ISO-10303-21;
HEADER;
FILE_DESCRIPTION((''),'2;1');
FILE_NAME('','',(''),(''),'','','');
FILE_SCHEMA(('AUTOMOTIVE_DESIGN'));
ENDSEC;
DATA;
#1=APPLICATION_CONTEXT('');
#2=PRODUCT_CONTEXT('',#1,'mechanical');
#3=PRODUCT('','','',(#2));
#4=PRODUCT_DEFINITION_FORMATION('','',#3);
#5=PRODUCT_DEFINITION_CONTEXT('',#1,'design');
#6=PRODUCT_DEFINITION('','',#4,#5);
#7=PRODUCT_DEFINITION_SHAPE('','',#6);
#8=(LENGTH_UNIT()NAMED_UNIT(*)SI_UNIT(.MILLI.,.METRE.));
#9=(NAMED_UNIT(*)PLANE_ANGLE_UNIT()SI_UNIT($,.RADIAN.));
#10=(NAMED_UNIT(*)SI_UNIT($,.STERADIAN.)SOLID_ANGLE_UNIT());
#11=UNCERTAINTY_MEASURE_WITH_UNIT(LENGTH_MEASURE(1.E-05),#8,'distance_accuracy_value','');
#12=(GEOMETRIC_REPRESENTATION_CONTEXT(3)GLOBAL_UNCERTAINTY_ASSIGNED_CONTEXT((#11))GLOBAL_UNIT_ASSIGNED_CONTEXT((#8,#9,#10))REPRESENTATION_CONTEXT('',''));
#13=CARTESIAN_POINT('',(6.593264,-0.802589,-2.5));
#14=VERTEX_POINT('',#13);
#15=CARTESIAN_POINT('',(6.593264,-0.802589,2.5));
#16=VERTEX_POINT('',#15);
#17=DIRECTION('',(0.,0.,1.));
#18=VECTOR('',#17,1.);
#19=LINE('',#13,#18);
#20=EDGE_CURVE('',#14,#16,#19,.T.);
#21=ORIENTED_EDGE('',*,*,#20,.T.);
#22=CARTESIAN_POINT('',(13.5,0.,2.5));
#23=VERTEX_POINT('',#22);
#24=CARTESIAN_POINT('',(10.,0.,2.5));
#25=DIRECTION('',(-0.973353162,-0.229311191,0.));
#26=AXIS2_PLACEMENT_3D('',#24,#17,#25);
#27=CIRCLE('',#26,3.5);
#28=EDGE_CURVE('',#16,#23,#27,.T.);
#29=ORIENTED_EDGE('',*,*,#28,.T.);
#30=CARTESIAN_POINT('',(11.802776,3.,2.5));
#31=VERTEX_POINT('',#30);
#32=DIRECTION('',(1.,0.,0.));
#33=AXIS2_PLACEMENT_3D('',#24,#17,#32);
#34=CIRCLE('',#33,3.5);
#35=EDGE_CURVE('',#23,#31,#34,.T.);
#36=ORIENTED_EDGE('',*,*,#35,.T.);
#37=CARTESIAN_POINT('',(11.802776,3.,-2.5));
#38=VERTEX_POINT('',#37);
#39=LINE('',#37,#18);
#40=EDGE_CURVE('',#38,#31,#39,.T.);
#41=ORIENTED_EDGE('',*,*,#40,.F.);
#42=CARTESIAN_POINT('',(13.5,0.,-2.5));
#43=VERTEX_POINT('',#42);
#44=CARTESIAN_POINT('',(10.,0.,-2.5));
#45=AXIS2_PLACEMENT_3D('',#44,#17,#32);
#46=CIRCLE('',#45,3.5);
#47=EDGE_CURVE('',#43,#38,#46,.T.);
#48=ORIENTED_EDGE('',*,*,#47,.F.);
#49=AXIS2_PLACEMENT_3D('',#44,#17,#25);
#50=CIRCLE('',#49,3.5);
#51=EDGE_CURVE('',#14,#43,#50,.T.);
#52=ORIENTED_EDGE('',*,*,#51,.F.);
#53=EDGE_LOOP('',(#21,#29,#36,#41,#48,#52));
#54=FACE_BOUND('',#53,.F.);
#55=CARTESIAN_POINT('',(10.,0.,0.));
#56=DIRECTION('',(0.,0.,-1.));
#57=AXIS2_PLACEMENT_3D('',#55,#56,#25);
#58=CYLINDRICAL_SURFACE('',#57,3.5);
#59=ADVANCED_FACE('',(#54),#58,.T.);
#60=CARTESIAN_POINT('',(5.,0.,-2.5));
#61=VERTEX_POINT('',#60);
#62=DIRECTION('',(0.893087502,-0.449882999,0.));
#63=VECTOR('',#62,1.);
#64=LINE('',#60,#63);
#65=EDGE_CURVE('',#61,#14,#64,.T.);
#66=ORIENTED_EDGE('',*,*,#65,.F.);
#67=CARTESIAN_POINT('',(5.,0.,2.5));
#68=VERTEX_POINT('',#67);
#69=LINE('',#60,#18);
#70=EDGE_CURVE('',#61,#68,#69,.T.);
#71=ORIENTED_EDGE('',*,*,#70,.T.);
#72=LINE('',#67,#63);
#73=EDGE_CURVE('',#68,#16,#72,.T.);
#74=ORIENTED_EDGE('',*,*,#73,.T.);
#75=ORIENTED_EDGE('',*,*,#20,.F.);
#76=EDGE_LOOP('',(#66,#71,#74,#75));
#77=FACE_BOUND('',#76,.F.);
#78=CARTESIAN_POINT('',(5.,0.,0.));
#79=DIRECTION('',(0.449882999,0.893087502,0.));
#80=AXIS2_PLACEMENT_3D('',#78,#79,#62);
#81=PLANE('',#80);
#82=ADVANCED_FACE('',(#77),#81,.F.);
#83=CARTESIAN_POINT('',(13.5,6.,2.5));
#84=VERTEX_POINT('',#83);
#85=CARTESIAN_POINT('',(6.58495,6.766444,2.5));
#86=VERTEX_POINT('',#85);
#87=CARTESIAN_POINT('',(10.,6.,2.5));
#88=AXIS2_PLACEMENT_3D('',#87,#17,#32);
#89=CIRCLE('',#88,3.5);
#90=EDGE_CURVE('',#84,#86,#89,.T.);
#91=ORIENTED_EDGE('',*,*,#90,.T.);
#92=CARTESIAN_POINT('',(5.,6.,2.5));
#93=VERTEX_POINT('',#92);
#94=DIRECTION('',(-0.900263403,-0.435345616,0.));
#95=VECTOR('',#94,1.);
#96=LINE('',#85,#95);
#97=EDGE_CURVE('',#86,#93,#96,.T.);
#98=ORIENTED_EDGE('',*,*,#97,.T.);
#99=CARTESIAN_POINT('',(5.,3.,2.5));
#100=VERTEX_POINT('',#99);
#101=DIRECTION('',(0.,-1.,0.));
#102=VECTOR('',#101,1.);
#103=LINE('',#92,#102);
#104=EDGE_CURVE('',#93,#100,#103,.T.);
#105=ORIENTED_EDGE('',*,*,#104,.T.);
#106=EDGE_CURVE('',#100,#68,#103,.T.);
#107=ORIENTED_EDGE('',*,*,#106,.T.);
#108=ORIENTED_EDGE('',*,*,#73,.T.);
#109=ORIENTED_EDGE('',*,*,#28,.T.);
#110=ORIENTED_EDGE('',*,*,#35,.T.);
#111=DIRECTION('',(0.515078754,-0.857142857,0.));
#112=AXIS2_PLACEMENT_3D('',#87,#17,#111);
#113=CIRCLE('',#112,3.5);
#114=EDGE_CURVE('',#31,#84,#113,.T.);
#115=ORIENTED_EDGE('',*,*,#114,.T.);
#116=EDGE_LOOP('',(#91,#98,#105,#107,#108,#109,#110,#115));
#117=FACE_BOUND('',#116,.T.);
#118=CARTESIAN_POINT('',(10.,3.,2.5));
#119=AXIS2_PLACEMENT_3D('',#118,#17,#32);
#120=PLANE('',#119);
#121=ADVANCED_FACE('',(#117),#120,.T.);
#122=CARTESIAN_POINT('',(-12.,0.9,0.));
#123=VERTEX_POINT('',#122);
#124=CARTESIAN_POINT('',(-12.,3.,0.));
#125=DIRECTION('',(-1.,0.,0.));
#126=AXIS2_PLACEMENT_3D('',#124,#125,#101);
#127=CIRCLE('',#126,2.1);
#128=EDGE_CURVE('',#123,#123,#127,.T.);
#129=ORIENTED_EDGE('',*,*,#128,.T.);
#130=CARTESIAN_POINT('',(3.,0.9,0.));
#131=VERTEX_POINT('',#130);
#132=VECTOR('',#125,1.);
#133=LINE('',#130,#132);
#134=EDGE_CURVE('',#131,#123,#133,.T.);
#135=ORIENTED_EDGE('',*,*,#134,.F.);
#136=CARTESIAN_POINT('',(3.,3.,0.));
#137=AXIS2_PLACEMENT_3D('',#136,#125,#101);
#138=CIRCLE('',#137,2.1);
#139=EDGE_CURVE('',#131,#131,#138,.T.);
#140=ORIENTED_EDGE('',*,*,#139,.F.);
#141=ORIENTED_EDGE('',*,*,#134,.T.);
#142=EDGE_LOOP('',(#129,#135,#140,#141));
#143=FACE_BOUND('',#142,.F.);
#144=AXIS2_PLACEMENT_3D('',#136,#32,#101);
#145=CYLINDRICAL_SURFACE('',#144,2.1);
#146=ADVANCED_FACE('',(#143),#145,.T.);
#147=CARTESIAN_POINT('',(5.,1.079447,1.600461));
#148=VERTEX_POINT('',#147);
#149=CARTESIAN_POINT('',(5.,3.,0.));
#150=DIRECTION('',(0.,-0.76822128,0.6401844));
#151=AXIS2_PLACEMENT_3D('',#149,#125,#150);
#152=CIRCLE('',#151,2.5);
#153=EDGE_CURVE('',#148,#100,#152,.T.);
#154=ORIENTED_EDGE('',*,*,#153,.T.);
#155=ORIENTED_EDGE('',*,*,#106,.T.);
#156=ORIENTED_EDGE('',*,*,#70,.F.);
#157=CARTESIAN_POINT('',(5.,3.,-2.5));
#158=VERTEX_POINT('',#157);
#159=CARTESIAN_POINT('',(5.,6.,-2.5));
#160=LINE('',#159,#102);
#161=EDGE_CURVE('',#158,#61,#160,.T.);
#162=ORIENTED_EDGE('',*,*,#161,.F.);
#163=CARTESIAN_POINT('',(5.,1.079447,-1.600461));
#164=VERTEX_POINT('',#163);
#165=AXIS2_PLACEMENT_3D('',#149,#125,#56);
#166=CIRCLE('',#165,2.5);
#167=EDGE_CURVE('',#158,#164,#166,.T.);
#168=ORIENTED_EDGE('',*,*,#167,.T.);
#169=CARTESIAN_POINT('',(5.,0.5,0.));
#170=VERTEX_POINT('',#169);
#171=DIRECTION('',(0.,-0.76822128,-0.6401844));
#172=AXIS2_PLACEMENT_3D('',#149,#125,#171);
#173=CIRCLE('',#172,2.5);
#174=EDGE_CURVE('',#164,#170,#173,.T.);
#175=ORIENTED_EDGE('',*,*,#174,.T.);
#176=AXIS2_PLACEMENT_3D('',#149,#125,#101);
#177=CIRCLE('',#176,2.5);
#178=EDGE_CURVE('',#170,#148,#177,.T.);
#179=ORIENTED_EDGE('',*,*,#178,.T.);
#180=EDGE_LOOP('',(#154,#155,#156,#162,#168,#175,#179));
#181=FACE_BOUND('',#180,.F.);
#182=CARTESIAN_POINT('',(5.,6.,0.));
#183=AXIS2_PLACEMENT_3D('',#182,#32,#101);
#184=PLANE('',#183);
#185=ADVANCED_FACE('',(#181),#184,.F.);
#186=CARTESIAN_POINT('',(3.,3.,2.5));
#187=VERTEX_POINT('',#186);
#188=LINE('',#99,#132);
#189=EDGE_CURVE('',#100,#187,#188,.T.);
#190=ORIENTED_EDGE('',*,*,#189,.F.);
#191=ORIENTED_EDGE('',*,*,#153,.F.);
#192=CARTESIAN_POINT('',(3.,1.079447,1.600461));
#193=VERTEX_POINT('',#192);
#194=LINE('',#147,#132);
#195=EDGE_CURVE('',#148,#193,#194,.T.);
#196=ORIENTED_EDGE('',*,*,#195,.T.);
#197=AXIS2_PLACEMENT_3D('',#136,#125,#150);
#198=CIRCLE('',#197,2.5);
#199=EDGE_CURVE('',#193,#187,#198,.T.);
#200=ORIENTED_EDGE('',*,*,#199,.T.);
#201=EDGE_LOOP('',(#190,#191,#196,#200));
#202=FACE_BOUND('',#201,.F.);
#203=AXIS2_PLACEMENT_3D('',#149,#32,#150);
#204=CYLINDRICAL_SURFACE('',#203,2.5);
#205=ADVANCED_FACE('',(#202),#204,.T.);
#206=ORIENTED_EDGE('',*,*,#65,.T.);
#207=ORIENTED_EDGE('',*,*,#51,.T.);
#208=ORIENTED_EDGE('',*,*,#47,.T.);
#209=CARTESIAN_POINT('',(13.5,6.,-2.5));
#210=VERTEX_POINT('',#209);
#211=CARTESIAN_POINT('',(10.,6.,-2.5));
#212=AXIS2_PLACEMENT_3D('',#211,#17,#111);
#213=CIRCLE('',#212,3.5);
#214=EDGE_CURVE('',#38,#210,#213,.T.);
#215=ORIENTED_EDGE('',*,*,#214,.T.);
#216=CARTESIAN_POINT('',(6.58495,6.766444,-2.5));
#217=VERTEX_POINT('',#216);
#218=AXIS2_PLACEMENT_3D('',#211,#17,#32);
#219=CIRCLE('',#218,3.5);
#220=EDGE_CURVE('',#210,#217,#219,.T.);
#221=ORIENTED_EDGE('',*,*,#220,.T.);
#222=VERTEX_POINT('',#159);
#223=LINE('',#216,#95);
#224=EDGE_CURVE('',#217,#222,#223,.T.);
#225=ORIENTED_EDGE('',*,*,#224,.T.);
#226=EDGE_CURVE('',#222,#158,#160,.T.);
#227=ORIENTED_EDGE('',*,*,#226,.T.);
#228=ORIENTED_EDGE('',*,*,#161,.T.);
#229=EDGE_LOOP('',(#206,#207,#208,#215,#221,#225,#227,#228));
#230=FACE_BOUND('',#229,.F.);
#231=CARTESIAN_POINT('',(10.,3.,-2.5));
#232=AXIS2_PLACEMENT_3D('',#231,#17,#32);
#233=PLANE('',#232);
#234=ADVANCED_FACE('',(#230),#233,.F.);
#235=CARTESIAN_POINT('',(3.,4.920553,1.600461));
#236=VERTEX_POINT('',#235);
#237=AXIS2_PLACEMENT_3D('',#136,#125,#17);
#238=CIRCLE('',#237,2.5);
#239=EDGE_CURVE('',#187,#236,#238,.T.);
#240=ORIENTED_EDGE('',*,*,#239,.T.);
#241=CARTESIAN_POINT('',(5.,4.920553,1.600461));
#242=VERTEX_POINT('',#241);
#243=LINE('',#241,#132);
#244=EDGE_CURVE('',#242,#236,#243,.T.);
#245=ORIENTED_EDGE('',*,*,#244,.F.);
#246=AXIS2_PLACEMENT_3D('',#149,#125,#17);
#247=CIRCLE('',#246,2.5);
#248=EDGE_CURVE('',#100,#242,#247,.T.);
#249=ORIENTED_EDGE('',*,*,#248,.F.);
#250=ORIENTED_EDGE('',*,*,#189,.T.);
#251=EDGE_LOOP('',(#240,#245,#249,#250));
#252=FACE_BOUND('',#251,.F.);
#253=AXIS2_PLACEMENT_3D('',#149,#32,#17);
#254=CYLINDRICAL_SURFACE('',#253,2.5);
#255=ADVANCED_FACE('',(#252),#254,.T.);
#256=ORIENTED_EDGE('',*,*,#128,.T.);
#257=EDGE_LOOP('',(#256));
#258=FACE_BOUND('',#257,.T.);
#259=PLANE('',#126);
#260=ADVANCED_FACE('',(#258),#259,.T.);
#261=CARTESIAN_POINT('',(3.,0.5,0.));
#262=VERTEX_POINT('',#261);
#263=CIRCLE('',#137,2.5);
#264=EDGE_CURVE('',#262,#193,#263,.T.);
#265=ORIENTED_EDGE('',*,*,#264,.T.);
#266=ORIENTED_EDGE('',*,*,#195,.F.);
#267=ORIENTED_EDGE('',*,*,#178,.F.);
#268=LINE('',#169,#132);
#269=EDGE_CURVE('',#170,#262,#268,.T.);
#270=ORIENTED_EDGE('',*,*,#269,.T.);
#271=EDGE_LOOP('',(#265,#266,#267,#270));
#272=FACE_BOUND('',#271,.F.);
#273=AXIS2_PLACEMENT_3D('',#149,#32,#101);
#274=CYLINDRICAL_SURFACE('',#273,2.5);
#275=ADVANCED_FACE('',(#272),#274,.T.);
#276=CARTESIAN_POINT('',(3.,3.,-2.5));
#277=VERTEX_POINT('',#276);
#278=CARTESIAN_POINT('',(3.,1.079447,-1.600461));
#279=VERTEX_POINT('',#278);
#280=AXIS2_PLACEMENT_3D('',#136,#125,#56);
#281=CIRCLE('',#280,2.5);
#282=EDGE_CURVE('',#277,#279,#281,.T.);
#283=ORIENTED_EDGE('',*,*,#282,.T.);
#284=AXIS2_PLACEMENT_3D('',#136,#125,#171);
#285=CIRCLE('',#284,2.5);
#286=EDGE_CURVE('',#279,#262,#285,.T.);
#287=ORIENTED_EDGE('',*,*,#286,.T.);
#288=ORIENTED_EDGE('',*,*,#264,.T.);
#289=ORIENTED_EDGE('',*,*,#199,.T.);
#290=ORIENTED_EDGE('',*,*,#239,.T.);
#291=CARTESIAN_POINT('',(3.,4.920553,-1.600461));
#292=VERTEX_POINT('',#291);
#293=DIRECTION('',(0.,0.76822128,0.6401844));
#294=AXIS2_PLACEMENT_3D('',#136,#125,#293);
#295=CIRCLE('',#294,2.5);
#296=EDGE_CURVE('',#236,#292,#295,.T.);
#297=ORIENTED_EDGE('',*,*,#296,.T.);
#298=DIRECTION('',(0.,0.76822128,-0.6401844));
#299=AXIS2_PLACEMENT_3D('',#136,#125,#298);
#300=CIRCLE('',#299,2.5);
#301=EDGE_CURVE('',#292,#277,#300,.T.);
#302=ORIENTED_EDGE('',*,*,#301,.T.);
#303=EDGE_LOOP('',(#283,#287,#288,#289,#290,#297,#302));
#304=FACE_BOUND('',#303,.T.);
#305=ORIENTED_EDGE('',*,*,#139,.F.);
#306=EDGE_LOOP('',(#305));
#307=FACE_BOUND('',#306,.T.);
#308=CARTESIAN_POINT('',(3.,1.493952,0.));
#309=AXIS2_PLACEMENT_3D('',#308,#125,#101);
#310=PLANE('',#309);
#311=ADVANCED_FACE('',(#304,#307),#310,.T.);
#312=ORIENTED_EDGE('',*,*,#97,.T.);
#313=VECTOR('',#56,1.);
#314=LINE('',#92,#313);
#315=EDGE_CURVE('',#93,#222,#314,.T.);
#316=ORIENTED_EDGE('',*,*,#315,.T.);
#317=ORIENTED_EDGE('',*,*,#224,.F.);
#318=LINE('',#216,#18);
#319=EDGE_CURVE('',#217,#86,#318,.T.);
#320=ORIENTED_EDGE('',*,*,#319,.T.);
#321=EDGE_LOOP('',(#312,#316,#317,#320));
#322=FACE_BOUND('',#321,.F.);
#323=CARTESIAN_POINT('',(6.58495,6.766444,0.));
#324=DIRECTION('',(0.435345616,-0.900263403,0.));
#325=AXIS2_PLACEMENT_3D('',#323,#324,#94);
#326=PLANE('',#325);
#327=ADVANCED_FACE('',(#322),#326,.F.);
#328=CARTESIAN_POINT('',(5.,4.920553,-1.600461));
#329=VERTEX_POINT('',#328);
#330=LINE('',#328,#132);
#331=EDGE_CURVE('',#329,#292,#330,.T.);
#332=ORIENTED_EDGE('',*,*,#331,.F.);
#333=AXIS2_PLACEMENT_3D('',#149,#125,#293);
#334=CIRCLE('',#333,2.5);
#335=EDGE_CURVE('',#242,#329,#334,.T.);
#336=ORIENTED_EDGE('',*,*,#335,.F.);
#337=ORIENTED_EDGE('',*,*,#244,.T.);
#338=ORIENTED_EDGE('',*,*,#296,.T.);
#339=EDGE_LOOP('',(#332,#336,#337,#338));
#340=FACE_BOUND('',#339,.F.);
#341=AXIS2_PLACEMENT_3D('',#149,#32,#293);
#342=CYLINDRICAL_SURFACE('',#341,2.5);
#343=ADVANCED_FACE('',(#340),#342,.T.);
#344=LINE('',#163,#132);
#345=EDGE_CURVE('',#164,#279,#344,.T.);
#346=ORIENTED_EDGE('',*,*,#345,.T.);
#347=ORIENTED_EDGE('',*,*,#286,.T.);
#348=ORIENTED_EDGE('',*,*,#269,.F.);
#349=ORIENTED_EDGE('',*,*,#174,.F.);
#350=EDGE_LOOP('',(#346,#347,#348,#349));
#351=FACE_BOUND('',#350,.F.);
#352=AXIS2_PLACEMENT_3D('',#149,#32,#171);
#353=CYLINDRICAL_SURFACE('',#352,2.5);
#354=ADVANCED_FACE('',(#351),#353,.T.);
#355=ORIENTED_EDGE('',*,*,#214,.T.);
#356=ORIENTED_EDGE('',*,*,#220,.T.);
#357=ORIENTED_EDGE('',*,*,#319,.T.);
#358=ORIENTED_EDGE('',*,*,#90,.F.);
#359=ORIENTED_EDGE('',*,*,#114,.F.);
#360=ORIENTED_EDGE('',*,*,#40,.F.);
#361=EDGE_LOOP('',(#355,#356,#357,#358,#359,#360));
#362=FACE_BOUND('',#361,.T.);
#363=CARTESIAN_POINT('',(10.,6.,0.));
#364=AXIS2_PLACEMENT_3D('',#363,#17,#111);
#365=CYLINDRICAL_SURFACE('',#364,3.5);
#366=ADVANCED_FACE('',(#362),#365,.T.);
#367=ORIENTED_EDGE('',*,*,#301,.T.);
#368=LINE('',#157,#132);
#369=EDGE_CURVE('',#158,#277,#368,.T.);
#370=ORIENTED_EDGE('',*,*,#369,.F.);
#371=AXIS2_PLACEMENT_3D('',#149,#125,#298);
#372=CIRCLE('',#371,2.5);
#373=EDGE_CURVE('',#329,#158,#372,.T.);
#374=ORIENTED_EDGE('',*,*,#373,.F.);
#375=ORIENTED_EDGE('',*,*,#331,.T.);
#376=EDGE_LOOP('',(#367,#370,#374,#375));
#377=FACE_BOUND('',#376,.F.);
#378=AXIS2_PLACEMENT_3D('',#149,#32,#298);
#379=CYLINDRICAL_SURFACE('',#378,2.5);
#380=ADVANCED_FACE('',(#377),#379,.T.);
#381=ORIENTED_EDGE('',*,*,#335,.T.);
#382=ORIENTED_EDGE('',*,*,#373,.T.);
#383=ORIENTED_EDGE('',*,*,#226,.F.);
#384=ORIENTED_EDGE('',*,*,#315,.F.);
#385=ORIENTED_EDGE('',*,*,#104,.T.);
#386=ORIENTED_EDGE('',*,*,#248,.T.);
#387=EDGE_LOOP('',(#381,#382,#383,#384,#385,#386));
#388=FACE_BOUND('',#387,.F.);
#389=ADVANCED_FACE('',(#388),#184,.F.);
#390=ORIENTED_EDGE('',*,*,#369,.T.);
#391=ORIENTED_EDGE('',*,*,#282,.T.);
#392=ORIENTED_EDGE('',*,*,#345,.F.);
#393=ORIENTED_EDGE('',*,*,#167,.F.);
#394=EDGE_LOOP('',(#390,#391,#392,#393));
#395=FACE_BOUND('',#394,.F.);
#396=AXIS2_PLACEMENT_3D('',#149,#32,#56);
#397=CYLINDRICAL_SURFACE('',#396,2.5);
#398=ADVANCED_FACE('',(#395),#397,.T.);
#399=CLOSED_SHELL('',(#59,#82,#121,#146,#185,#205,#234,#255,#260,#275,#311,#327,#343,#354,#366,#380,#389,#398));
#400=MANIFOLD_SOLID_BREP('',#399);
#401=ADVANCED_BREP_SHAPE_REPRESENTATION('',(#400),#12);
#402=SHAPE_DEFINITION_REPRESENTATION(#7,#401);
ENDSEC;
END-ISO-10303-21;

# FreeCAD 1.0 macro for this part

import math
import FreeCAD as App
import Part
import Sketcher
from FreeCAD import Vector

doc = App.newDocument("Part")
body = doc.addObject("PartDesign::Body", "Body")

# Sketch on XY plane
sketch1 = doc.addObject("Sketcher::SketchObject", "Sketch")
body.addObject(sketch1)
sketch1.AttachmentSupport = (doc.XY_Plane, [""])
sketch1.MapMode = "FlatFace"
sketch1.addGeometry([
    Part.ArcOfCircle(Part.Circle(Vector(10, 6, 0), Vector(0, 0, 1), 3.5), math.radians(-58.997281), math.radians(0)),  # 0
    Part.ArcOfCircle(Part.Circle(Vector(10, 6, 0), Vector(0, 0, 1), 3.5), math.radians(0), math.radians(167.35064)),  # 1
    Part.LineSegment(Vector(6.58495, 6.766444, 0), Vector(5, 6, 0)),  # 2
    Part.LineSegment(Vector(5, 6, 0), Vector(5, 0, 0)),  # 3
    Part.LineSegment(Vector(5, 0, 0), Vector(6.593264, -0.802589, 0)),  # 4
    Part.ArcOfCircle(Part.Circle(Vector(10, 0, 0), Vector(0, 0, 1), 3.5), math.radians(-166.743478), math.radians(0)),  # 5
    Part.ArcOfCircle(Part.Circle(Vector(10, 0, 0), Vector(0, 0, 1), 3.5), math.radians(0), math.radians(58.997281)),  # 6
], False)
sketch1.addConstraint([
    Sketcher.Constraint("Tangent", 0, 2, 1, 1),
    Sketcher.Constraint("Coincident", 1, 2, 2, 1),
    Sketcher.Constraint("Coincident", 2, 2, 3, 1),
    Sketcher.Constraint("Coincident", 3, 2, 4, 1),
    Sketcher.Constraint("Coincident", 4, 2, 5, 1),
    Sketcher.Constraint("Tangent", 5, 2, 6, 1),
    Sketcher.Constraint("Coincident", 6, 2, 0, 1),
    Sketcher.Constraint("Vertical", 3),
    Sketcher.Constraint("Equal", 0, 1),
    Sketcher.Constraint("Equal", 1, 5),
    Sketcher.Constraint("Equal", 5, 6),
    Sketcher.Constraint("PointOnObject", 5, 3, -1),
    Sketcher.Constraint("PointOnObject", 3, 2, -1),
    Sketcher.Constraint("PointOnObject", 5, 2, -1),
    Sketcher.Constraint("Horizontal", 1, 3, 0, 2),
    Sketcher.Constraint("Horizontal", 0, 2, 2, 2),
    Sketcher.Constraint("Vertical", 1, 3, 5, 3),
    Sketcher.Constraint("Radius", 0, 3.5),
    Sketcher.Constraint("DistanceY", 3, 2, 3, 1, 6.0),
    Sketcher.Constraint("DistanceX", -1, 1, 0, 3, 10.0),
    Sketcher.Constraint("DistanceX", -1, 1, 2, 2, 5.0),
    Sketcher.Constraint("Distance", 2, 1.760541),
    Sketcher.Constraint("DistanceY", 4, 2, -1, 1, 0.802589),
])
pad1 = doc.addObject("PartDesign::Pad", "Pad")
body.addObject(pad1)
pad1.Profile = sketch1
pad1.Length = 5
pad1.Midplane = True

# Sketch on YZ plane
sketch2 = doc.addObject("Sketcher::SketchObject", "Sketch001")
body.addObject(sketch2)
sketch2.AttachmentSupport = (doc.YZ_Plane, [""])
sketch2.MapMode = "FlatFace"
sketch2.AttachmentOffset = App.Placement(Vector(0, 0, 5), App.Rotation())
sketch2.addGeometry([
    Part.ArcOfCircle(Part.Circle(Vector(3, 0, 0), Vector(0, 0, 1), 2.5), math.radians(140.194429), math.radians(180)),  # 0
    Part.ArcOfCircle(Part.Circle(Vector(3, 0, 0), Vector(0, 0, 1), 2.5), math.radians(90), math.radians(140.194429)),  # 1
    Part.ArcOfCircle(Part.Circle(Vector(3, 0, 0), Vector(0, 0, 1), 2.5), math.radians(39.805571), math.radians(90)),  # 2
    Part.ArcOfCircle(Part.Circle(Vector(3, 0, 0), Vector(0, 0, 1), 2.5), math.radians(-39.805571), math.radians(39.805571)),  # 3
    Part.ArcOfCircle(Part.Circle(Vector(3, 0, 0), Vector(0, 0, 1), 2.5), math.radians(-90), math.radians(-39.805571)),  # 4
    Part.ArcOfCircle(Part.Circle(Vector(3, 0, 0), Vector(0, 0, 1), 2.5), math.radians(-140.194429), math.radians(-90)),  # 5
    Part.ArcOfCircle(Part.Circle(Vector(3, 0, 0), Vector(0, 0, 1), 2.5), math.radians(180), math.radians(219.805571)),  # 6
], False)
sketch2.addConstraint([
    Sketcher.Constraint("Tangent", 0, 1, 1, 2),
    Sketcher.Constraint("Tangent", 1, 1, 2, 2),
    Sketcher.Constraint("Tangent", 2, 1, 3, 2),
    Sketcher.Constraint("Tangent", 3, 1, 4, 2),
    Sketcher.Constraint("Tangent", 4, 1, 5, 2),
    Sketcher.Constraint("Tangent", 5, 1, 6, 2),
    Sketcher.Constraint("Tangent", 6, 1, 0, 2),
    Sketcher.Constraint("Coincident", 2, 3, 0, 3),
    Sketcher.Constraint("Coincident", 4, 3, 0, 3),
    Sketcher.Constraint("Symmetric", 2, 1, 3, 1, -1),
    Sketcher.Constraint("PointOnObject", 6, 1, -1),
    Sketcher.Constraint("Horizontal", 0, 1, 2, 1),
    Sketcher.Constraint("Horizontal", 3, 1, 5, 1),
    Sketcher.Constraint("Vertical", 6, 3, 1, 1),
    Sketcher.Constraint("Vertical", 1, 1, 4, 1),
    Sketcher.Constraint("Radius", 0, 2.5),
    Sketcher.Constraint("DistanceX", -1, 1, 0, 3, 3.0),
    Sketcher.Constraint("DistanceY", -1, 1, 0, 1, 1.600461),
])
pad2 = doc.addObject("PartDesign::Pad", "Pad001")
body.addObject(pad2)
pad2.Profile = sketch2
pad2.Length = 2
pad2.Reversed = True

# Sketch on YZ plane
sketch3 = doc.addObject("Sketcher::SketchObject", "Sketch002")
body.addObject(sketch3)
sketch3.AttachmentSupport = (doc.YZ_Plane, [""])
sketch3.MapMode = "FlatFace"
sketch3.AttachmentOffset = App.Placement(Vector(0, 0, 3), App.Rotation())
sketch3.addGeometry(Part.Circle(Vector(3, 0, 0), Vector(0, 0, 1), 2.1), False)
sketch3.addConstraint([
    Sketcher.Constraint("PointOnObject", 0, 3, -1),
    Sketcher.Constraint("Diameter", 0, 4.2),
    Sketcher.Constraint("DistanceX", -1, 1, 0, 3, 3.0),
])
pad3 = doc.addObject("PartDesign::Pad", "Pad002")
body.addObject(pad3)
pad3.Profile = sketch3
pad3.Length = 15
pad3.Reversed = True

doc.recompute()
